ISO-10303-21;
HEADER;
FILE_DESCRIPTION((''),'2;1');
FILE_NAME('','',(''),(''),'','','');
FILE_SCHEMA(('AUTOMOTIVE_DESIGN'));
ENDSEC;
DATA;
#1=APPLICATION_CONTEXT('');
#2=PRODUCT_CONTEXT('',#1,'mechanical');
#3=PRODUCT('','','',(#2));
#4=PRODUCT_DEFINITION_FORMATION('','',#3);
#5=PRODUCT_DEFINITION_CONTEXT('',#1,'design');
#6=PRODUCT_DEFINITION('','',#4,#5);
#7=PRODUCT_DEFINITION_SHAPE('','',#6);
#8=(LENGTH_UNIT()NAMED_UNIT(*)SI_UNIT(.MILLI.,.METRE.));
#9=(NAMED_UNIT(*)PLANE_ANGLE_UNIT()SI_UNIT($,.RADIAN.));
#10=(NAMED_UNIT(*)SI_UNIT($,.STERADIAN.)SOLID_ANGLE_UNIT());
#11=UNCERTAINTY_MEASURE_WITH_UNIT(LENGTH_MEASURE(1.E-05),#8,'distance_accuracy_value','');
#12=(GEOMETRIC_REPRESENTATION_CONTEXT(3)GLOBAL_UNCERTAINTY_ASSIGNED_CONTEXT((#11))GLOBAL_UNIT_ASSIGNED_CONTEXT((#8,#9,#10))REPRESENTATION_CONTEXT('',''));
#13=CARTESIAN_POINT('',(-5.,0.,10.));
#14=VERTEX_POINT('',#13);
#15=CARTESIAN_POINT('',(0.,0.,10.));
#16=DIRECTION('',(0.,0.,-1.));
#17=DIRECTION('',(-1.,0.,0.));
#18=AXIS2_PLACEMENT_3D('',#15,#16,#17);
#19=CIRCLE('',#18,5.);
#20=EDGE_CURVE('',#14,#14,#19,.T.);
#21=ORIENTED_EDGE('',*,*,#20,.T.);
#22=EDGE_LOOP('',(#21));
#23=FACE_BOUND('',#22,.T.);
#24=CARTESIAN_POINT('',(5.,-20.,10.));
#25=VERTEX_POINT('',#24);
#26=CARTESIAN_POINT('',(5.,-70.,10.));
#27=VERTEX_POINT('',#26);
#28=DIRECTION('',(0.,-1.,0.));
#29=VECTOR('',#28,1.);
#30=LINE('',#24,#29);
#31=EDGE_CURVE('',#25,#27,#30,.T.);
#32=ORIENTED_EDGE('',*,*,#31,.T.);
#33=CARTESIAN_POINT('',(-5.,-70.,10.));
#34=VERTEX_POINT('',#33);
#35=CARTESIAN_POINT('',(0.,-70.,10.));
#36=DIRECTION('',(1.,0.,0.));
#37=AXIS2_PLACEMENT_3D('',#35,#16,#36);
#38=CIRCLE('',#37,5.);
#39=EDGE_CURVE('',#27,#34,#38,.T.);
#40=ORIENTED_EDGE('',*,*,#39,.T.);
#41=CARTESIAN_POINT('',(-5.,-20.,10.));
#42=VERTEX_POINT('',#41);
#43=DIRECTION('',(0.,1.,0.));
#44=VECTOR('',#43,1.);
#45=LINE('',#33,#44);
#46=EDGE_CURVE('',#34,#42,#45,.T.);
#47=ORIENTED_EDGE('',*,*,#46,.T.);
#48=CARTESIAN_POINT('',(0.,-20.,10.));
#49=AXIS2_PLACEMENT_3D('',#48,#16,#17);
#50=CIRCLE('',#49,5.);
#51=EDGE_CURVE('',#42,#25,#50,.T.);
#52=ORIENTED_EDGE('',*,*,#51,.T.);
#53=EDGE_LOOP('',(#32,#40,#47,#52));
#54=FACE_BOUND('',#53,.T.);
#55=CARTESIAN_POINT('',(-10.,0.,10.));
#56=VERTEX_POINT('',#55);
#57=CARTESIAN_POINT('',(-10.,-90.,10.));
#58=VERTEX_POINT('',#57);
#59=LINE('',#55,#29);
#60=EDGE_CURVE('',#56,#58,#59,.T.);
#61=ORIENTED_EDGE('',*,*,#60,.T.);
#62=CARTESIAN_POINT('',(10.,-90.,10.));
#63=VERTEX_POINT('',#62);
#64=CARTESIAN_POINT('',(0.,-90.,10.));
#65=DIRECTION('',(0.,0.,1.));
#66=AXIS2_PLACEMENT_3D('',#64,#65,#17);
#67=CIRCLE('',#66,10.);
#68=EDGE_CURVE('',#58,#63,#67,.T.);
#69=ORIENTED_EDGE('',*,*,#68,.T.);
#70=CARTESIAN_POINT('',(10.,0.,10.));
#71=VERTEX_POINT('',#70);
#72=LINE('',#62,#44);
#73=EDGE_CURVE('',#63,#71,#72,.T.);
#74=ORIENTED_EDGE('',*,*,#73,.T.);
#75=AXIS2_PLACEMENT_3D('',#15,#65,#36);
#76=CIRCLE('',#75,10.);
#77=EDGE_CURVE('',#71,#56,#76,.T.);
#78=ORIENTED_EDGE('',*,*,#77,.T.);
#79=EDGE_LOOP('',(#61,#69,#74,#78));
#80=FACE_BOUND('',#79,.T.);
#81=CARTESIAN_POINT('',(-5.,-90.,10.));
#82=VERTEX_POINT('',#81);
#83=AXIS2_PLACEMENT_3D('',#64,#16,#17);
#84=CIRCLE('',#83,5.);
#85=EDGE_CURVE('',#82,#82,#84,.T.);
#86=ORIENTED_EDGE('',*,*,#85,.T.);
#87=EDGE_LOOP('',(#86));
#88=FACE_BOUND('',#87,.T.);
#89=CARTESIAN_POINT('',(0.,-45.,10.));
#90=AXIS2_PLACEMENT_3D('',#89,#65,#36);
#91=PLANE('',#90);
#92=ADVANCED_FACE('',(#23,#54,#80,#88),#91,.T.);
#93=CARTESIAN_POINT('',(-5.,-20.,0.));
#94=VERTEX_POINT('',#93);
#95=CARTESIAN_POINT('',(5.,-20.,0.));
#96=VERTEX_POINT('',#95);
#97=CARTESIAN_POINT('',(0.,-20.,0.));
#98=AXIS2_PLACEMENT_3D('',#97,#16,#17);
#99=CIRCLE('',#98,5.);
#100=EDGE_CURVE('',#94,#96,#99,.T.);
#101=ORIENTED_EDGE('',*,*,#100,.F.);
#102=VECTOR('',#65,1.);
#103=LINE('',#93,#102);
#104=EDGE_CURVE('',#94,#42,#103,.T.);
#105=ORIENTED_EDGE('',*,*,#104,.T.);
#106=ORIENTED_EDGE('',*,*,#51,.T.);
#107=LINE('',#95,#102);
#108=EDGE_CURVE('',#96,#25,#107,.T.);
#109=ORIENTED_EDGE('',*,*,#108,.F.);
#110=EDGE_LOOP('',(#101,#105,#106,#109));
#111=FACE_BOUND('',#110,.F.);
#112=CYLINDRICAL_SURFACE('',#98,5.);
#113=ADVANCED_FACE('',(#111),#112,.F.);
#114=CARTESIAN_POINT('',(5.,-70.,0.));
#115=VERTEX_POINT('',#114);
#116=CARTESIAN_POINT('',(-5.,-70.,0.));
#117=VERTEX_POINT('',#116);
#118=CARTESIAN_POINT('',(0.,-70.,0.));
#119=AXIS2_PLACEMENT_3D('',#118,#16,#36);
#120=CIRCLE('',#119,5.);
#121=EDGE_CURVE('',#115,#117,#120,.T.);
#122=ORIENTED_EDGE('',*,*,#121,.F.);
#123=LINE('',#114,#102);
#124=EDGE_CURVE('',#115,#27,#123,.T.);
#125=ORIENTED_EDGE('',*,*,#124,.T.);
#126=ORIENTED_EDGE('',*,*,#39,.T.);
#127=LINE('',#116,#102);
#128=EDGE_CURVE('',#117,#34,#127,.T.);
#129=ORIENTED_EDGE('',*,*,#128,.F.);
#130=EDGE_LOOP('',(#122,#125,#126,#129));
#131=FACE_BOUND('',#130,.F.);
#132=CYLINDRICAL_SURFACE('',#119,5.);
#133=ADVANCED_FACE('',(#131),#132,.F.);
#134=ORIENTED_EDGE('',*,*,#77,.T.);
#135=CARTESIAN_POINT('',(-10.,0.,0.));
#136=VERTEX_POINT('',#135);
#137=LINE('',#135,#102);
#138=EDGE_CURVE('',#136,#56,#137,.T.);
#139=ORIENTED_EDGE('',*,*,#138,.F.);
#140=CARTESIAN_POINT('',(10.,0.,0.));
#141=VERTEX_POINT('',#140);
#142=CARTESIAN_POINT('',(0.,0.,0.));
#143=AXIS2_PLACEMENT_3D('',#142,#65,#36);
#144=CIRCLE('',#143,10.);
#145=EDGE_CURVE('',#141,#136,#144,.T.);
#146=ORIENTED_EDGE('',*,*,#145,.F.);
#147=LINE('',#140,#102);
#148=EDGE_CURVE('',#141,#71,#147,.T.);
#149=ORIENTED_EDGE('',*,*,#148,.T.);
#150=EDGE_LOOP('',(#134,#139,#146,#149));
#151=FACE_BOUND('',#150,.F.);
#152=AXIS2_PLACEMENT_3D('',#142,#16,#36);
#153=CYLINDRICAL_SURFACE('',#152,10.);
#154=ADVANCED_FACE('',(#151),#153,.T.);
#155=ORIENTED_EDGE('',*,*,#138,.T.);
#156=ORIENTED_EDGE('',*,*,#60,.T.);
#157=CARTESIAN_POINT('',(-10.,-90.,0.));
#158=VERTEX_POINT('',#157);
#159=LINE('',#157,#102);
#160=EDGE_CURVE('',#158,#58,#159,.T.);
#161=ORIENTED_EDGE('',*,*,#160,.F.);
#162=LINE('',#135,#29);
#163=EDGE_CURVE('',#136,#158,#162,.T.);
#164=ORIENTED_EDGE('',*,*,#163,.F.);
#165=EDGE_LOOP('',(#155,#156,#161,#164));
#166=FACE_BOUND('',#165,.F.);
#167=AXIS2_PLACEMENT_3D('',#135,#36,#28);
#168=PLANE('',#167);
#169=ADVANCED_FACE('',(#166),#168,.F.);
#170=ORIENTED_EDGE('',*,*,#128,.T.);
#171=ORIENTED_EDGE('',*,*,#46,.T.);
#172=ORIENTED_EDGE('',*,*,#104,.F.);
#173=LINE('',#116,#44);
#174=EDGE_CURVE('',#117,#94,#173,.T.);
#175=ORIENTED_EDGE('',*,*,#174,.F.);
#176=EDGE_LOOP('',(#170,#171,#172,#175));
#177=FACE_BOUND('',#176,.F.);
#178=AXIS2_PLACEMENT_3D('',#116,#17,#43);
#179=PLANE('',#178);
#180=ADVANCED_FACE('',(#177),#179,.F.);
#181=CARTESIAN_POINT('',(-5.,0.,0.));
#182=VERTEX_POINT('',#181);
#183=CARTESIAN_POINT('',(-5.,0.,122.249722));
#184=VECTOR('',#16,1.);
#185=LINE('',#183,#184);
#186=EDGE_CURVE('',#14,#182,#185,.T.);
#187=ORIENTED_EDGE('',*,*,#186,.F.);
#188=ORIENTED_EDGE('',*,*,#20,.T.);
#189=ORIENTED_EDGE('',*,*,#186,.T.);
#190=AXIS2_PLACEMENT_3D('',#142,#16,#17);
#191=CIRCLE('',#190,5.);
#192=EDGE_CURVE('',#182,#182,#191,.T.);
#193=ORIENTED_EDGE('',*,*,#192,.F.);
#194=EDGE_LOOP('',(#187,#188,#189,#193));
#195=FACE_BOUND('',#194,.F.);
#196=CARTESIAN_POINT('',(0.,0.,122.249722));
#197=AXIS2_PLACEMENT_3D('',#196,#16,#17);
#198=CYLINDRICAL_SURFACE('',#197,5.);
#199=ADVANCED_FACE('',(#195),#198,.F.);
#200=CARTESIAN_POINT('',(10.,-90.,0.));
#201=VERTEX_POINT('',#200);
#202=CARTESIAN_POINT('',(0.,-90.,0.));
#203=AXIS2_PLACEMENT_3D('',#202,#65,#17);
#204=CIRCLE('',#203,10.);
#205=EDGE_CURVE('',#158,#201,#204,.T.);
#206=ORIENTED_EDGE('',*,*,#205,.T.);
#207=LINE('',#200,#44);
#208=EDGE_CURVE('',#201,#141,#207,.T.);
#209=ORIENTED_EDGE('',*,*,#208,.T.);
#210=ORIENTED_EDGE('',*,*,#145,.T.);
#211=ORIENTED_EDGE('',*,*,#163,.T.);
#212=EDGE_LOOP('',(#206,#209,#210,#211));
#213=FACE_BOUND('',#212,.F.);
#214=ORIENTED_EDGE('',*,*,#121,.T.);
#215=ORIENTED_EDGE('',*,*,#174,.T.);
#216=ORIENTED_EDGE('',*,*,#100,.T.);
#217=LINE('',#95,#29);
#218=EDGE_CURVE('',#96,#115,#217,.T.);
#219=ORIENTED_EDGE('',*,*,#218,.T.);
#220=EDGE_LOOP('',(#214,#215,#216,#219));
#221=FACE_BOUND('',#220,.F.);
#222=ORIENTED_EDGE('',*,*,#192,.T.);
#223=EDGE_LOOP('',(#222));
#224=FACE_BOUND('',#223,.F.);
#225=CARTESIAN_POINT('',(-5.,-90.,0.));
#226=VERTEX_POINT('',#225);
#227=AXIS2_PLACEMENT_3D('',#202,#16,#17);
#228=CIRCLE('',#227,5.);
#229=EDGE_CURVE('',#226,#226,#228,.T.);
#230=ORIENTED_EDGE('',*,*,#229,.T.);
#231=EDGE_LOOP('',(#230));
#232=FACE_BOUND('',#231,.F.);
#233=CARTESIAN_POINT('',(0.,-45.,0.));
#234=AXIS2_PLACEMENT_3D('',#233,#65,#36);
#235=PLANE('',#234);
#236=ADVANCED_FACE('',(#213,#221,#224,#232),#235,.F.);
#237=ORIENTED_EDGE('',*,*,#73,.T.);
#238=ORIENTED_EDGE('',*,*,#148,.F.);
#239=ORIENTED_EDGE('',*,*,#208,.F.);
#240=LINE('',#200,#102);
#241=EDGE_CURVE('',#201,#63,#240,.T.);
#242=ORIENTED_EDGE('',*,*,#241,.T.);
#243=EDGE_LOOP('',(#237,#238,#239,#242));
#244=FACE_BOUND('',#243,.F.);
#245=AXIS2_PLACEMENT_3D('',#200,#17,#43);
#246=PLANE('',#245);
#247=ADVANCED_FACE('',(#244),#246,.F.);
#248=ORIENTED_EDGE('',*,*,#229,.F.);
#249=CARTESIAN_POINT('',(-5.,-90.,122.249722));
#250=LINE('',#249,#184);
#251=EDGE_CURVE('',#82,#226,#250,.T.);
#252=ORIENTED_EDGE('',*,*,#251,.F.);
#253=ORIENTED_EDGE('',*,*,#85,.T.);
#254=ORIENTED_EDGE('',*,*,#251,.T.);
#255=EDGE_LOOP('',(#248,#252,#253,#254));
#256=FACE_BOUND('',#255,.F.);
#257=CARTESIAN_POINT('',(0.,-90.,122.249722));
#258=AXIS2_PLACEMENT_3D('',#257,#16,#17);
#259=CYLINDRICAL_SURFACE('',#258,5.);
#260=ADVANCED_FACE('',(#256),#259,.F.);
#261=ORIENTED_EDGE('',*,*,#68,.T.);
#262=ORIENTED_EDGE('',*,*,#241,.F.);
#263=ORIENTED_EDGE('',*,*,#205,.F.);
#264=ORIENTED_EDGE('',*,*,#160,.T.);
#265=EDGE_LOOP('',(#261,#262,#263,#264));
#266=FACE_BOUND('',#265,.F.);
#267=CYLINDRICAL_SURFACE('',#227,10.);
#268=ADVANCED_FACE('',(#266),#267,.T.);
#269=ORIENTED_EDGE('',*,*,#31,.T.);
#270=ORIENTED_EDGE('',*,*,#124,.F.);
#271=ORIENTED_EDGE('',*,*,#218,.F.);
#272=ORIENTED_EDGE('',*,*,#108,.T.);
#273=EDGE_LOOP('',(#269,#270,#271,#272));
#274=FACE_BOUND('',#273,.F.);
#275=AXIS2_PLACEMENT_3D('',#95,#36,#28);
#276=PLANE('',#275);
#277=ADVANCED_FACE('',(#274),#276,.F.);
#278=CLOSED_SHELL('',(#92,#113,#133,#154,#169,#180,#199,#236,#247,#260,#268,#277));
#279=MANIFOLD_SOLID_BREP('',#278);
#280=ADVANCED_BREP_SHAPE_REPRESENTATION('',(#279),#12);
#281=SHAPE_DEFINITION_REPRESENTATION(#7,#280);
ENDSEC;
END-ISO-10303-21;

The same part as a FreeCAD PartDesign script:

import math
import FreeCAD as App
import Part
import Sketcher

V = App.Vector
Q = App.Units.Quantity

doc = App.newDocument("Part")
params = doc.addObject("Spreadsheet::Sheet", "Params")
for row, (alias, value) in enumerate([
    ("sketch1_radius", "10 mm"),
    ("sketch1_radius2", "5 mm"),
    ("sketch1_height", "90 mm"),
    ("sketch1_height2", "50 mm"),
    ("pad1_length", "10 mm"),
    ("sketch2_diameter", "10 mm"),
    ("hole_diameter", "10 mm"),
], start=1):
    params.set(f"A{row}", alias)
    params.set(f"B{row}", "=" + value)
    params.setAlias(f"B{row}", alias)

body = doc.addObject("PartDesign::Body", "Body")

# Sketch on XY plane
sketch1 = body.newObject("Sketcher::SketchObject", "Sketch")
sketch1.AttachmentSupport = (doc.getObject("XY_Plane"), [""])
sketch1.MapMode = "FlatFace"
sketch1.addGeometry([
    Part.LineSegment(V(10, -90, 0), V(10, 0, 0)),  # 0
    Part.ArcOfCircle(Part.Circle(V(0, 0, 0), V(0, 0, 1), 10), math.radians(0), math.radians(180)),  # 1
    Part.LineSegment(V(-10, 0, 0), V(-10, -90, 0)),  # 2
    Part.ArcOfCircle(Part.Circle(V(0, -90, 0), V(0, 0, 1), 10), math.radians(180), math.radians(360)),  # 3
    Part.LineSegment(V(-5, -70, 0), V(-5, -20, 0)),  # 4
    Part.ArcOfCircle(Part.Circle(V(0, -20, 0), V(0, 0, 1), 5), math.radians(0), math.radians(180)),  # 5
    Part.LineSegment(V(5, -20, 0), V(5, -70, 0)),  # 6
    Part.ArcOfCircle(Part.Circle(V(0, -70, 0), V(0, 0, 1), 5), math.radians(180), math.radians(360)),  # 7
], False)
sketch1.addConstraint([
    Sketcher.Constraint("Tangent", 0, 2, 1, 1),
    Sketcher.Constraint("Tangent", 1, 2, 2, 1),
    Sketcher.Constraint("Tangent", 2, 2, 3, 1),
    Sketcher.Constraint("Tangent", 3, 2, 0, 1),
    Sketcher.Constraint("Tangent", 4, 2, 5, 2),
    Sketcher.Constraint("Tangent", 5, 1, 6, 1),
    Sketcher.Constraint("Tangent", 6, 2, 7, 2),
    Sketcher.Constraint("Tangent", 7, 1, 4, 1),
    Sketcher.Constraint("Vertical", 0),
    Sketcher.Constraint("Vertical", 2),
    Sketcher.Constraint("Vertical", 4),
    Sketcher.Constraint("Vertical", 6),
    Sketcher.Constraint("Coincident", 1, 3, -1, 1),
    Sketcher.Constraint("PointOnObject", 5, 3, -2),
    Sketcher.Constraint("Radius", 1, Q("10 mm")),
    Sketcher.Constraint("Radius", 5, Q("5 mm")),
    Sketcher.Constraint("DistanceY", 0, 1, 0, 2, Q("90 mm")),
    Sketcher.Constraint("DistanceY", 4, 1, 4, 2, Q("50 mm")),
    Sketcher.Constraint("DistanceY", 5, 3, -1, 1, Q("20 mm")),
])
sketch1.setExpression("Constraints[14]", "Params.sketch1_radius")
sketch1.setExpression("Constraints[15]", "Params.sketch1_radius2")
sketch1.setExpression("Constraints[16]", "Params.sketch1_height")
sketch1.setExpression("Constraints[17]", "Params.sketch1_height2")
pad1 = body.newObject("PartDesign::Pad", "Pad")
pad1.Profile = sketch1
pad1.setExpression("Length", "Params.pad1_length")

# Sketch on XY plane
sketch2 = body.newObject("Sketcher::SketchObject", "Sketch001")
sketch2.AttachmentSupport = (doc.getObject("XY_Plane"), [""])
sketch2.MapMode = "FlatFace"
sketch2.AttachmentOffset = App.Placement(V(0, 0, 10), App.Rotation())
sketch2.addGeometry([
    Part.Circle(V(0, 0, 0), V(0, 0, 1), 5),
    Part.Circle(V(0, -90, 0), V(0, 0, 1), 5),
], False)
sketch2.addConstraint([
    Sketcher.Constraint("Coincident", 0, 3, -1, 1),
    Sketcher.Constraint("Equal", 0, 1),
    Sketcher.Constraint("PointOnObject", 1, 3, -2),
    Sketcher.Constraint("Diameter", 0, Q("10 mm")),
    Sketcher.Constraint("DistanceY", 1, 3, -1, 1, Q("90 mm")),
])
sketch2.setExpression("Constraints[3]", "Params.sketch2_diameter")
doc.recompute()
hole = body.newObject("PartDesign::Hole", "Hole")
hole.Profile = sketch2
hole.ThreadType = "None"
hole.setExpression("Diameter", "Params.hole_diameter")
hole.DepthType = "ThroughAll"

doc.recompute()
